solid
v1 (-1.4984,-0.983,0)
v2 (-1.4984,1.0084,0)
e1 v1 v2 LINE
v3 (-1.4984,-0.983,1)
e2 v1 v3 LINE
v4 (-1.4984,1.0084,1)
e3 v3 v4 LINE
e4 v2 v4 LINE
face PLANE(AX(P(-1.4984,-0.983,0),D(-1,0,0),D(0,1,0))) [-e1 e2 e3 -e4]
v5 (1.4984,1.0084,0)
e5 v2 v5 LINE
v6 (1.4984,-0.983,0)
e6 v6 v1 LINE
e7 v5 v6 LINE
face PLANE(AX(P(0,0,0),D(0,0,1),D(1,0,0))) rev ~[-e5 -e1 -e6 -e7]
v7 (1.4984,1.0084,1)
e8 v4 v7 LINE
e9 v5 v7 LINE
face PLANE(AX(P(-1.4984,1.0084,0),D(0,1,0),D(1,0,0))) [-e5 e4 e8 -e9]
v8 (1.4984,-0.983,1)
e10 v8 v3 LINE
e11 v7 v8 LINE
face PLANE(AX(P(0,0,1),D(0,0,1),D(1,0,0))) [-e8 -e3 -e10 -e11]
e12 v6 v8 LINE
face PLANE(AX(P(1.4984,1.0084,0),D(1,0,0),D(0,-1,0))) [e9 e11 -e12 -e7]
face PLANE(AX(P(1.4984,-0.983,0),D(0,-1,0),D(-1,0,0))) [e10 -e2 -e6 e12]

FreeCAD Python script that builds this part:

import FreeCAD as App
import Part
import Sketcher

V = App.Vector


def add_polygon(sketch, points):
    """Adds a closed chain of lines whose ends are joined by coincident constraints."""
    first, n = sketch.GeometryCount, len(points)
    for a, b in zip(points, points[1:] + points[:1]):
        sketch.addGeometry(Part.LineSegment(App.Vector(*a, 0), App.Vector(*b, 0)), False)
    for i in range(n):
        sketch.addConstraint(Sketcher.Constraint("Coincident", first + i, 2, first + (i + 1) % n, 1))

doc = App.newDocument("Part")
body = doc.addObject("PartDesign::Body", "Body")

# Sketch on XY plane
sketch1 = body.newObject("Sketcher::SketchObject", "Sketch")
sketch1.AttachmentSupport = (doc.getObject("XY_Plane"), [""])
sketch1.MapMode = "FlatFace"
add_polygon(sketch1, [(1.5, 1), (-1.5, 1), (-1.5, -1), (1.5, -1)])  # lines 0-3
sketch1.addConstraint(Sketcher.Constraint("Horizontal", 0))
sketch1.addConstraint(Sketcher.Constraint("Vertical", 1))
sketch1.addConstraint(Sketcher.Constraint("Horizontal", 2))
sketch1.addConstraint(Sketcher.Constraint("Vertical", 3))
sketch1.addConstraint(Sketcher.Constraint("DistanceX", 0, 2, 0, 1, 2.9968))
sketch1.addConstraint(Sketcher.Constraint("DistanceY", 1, 2, 1, 1, 1.9914))
sketch1.addConstraint(Sketcher.Constraint("DistanceY", 1, 2, -1, 1, 0.983))
sketch1.addConstraint(Sketcher.Constraint("DistanceX", 0, 2, -1, 1, 1.4984))
pad1 = body.newObject("PartDesign::Pad", "Pad")
pad1.Profile = sketch1
pad1.Length = 1

doc.recompute()
